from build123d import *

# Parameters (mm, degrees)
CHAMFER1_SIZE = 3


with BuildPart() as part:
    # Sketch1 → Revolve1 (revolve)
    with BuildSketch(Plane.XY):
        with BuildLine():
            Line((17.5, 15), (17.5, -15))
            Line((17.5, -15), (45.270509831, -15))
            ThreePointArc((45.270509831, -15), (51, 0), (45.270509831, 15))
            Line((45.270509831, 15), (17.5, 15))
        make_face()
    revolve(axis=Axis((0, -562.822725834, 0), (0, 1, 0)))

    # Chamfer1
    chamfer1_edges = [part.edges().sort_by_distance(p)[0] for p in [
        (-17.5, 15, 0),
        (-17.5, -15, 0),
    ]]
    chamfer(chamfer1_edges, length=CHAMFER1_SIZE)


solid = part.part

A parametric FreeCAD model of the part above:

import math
import FreeCAD as App
import Part
import Sketcher

V = App.Vector
Q = App.Units.Quantity


def edges_at(feature, points):
    """Names of the edges that pass closest to the given points."""
    edges = feature.Shape.Edges
    near = lambda p: min(range(len(edges)), key=lambda i: edges[i].distToShape(Part.Vertex(*p))[0])
    return sorted({f"Edge{near(p) + 1}" for p in points})

doc = App.newDocument("Part")
body = doc.addObject("PartDesign::Body", "Body")

sketch1 = doc.addObject("Sketcher::SketchObject", "Sketch")
body.addObject(sketch1)
sketch1.AttachmentSupport = (doc.XY_Plane, [""])
sketch1.MapMode = "FlatFace"
sketch1.addGeometry([
    Part.LineSegment(V(17.5, 15, 0), V(17.5, -15, 0)),
    Part.LineSegment(V(17.5, -15, 0), V(45.27051, -15, 0)),
    Part.ArcOfCircle(Part.Circle(V(28.5, 0, 0), V(0, 0, 1), 22.5), math.radians(-41.810315), math.radians(41.810315)),
    Part.LineSegment(V(45.27051, 15, 0), V(17.5, 15, 0)),
], False)
sketch1.addConstraint([
    Sketcher.Constraint("Coincident", 0, 2, 1, 1),
    Sketcher.Constraint("Coincident", 1, 2, 2, 1),
    Sketcher.Constraint("Coincident", 2, 2, 3, 1),
    Sketcher.Constraint("Coincident", 3, 2, 0, 1),
    Sketcher.Constraint("Vertical", 0),
    Sketcher.Constraint("Horizontal", 1),
    Sketcher.Constraint("Horizontal", 3),
    Sketcher.Constraint("Symmetric", 1, 2, 2, 2, -1),
    Sketcher.Constraint("Radius", 2, Q("22.5 mm")),
    Sketcher.Constraint("DistanceY", 0, 2, 0, 1, Q("30 mm")),
    Sketcher.Constraint("DistanceX", 0, 2, 2, 3, Q("11 mm")),
    Sketcher.Constraint("DistanceX", -1, 1, 2, 3, Q("28.5 mm")),
])
revolution = doc.addObject("PartDesign::Revolution", "Revolution")
body.addObject(revolution)
revolution.Profile = sketch1
revolution.ReferenceAxis = (sketch1, ["V_Axis"])
revolution.Angle = 360
doc.recompute()

chamfer = doc.addObject("PartDesign::Chamfer", "Chamfer")
body.addObject(chamfer)
chamfer.Base = (revolution, edges_at(revolution, [(-17.5, 15, 0), (-17.5, -15, 0)]))
chamfer.Size = 3

doc.recompute()
